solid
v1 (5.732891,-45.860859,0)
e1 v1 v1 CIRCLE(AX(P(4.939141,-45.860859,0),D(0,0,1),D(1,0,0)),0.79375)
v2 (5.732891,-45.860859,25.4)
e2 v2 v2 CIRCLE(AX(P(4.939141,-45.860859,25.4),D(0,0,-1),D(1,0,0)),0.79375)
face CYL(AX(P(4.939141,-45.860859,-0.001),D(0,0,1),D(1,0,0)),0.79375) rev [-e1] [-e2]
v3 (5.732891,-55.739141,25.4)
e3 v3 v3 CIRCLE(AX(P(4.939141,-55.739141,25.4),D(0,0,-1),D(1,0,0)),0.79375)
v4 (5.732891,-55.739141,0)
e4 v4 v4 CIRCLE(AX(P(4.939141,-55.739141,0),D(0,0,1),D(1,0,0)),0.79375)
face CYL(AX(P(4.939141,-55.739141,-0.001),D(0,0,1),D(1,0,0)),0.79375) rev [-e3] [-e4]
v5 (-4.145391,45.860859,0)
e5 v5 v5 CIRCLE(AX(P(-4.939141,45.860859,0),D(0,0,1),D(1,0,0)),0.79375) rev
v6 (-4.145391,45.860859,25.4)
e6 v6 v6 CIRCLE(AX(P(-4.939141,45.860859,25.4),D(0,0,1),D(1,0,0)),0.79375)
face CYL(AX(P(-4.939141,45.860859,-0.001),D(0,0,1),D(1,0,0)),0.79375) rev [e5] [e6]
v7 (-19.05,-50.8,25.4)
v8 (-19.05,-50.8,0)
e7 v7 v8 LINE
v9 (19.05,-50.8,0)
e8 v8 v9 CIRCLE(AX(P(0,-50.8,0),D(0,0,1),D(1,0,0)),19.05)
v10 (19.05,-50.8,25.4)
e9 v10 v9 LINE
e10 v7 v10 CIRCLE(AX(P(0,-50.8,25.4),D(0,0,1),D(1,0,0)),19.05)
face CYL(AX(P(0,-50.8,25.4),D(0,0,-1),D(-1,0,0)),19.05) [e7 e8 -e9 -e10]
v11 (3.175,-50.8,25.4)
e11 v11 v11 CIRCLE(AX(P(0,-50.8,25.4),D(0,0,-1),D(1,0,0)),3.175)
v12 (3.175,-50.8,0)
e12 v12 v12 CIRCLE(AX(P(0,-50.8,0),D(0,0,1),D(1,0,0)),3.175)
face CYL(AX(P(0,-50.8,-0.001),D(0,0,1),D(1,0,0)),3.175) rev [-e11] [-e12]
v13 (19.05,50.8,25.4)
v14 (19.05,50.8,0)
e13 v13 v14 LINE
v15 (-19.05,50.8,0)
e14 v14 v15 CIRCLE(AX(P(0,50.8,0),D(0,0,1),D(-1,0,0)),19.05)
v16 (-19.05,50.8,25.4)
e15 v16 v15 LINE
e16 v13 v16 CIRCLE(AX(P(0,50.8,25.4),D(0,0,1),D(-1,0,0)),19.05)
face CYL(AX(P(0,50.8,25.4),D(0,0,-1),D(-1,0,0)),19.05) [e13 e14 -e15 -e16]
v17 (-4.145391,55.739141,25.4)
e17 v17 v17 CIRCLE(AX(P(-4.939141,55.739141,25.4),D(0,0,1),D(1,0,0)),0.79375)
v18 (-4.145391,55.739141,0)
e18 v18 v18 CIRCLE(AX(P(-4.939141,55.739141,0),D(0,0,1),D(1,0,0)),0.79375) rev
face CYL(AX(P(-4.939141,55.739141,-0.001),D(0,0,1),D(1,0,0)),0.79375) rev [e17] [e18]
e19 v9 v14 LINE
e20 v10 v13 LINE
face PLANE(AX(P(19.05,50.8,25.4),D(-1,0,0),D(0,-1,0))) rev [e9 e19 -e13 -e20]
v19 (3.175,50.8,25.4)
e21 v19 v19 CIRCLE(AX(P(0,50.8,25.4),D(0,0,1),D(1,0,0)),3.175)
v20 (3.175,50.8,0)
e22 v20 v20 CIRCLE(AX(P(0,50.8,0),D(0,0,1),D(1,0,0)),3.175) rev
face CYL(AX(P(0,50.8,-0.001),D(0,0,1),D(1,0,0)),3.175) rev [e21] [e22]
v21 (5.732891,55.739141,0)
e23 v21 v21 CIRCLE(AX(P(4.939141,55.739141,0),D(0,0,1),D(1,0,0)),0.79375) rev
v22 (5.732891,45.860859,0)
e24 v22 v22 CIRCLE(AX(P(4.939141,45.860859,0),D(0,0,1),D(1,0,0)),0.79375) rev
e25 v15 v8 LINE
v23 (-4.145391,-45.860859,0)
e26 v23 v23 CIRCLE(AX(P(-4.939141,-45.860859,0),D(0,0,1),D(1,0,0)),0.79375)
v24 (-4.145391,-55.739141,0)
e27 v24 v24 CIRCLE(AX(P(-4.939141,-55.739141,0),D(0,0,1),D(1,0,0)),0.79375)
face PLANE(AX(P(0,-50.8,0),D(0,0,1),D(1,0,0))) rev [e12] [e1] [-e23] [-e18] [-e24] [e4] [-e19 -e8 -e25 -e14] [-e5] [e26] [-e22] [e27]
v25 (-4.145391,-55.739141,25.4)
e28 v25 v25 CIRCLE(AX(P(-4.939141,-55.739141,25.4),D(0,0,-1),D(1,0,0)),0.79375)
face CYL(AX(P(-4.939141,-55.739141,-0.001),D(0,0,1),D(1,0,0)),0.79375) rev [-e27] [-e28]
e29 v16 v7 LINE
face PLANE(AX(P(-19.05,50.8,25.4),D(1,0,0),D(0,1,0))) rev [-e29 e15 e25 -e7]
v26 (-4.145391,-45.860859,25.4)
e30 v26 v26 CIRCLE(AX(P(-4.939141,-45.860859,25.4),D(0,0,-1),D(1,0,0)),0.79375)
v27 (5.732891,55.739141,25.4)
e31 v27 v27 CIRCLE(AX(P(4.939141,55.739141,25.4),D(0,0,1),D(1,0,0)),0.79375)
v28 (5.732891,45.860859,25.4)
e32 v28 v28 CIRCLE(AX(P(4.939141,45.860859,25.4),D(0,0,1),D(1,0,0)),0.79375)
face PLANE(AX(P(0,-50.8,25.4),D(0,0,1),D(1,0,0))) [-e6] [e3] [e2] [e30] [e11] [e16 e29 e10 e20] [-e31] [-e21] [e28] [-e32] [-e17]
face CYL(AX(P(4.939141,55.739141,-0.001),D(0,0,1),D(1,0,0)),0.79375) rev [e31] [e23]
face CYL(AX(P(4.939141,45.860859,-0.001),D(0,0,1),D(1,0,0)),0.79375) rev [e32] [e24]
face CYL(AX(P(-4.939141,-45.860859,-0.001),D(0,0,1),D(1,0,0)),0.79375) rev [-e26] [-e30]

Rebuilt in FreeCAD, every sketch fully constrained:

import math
import FreeCAD as App
import Part
import Sketcher
from FreeCAD import Vector
Q = App.Units.Quantity

doc = App.newDocument("Part")
body = doc.addObject("PartDesign::Body", "Body")

sketch1 = body.newObject("Sketcher::SketchObject", "Sketch")
sketch1.AttachmentSupport = (doc.getObject("XY_Plane"), [""])
sketch1.MapMode = "FlatFace"
sketch1.addGeometry([
    Part.LineSegment(Vector(19, -51, 0), Vector(19, 51, 0)),
    Part.ArcOfCircle(Part.Circle(Vector(0, 51, 0), Vector(0, 0, 1), 19), math.radians(0), math.radians(180)),
    Part.LineSegment(Vector(-19, 51, 0), Vector(-19, -51, 0)),
    Part.ArcOfCircle(Part.Circle(Vector(0, -51, 0), Vector(0, 0, 1), 19), math.radians(180), math.radians(360)),
], False)
sketch1.addConstraint([
    Sketcher.Constraint("Tangent", 0, 2, 1, 1),
    Sketcher.Constraint("Tangent", 1, 2, 2, 1),
    Sketcher.Constraint("Tangent", 2, 2, 3, 1),
    Sketcher.Constraint("Tangent", 3, 2, 0, 1),
    Sketcher.Constraint("Vertical", 0),
    Sketcher.Constraint("Vertical", 2),
    Sketcher.Constraint("Symmetric", 1, 3, 3, 3, -1, 1),
    Sketcher.Constraint("DistanceY", 0, 1, 0, 2, Q("4 in")),
    Sketcher.Constraint("Radius", 1, Q("0.75 in")),
])
pad1 = body.newObject("PartDesign::Pad", "Pad")
pad1.Profile = sketch1
pad1.Length = Q("1 in")

sketch2 = body.newObject("Sketcher::SketchObject", "Sketch001")
sketch2.AttachmentSupport = (doc.getObject("XY_Plane"), [""])
sketch2.MapMode = "FlatFace"
sketch2.AttachmentOffset = App.Placement(Vector(0, 0, 1 * 25.4), App.Rotation())
sketch2.addGeometry([
    Part.Circle(Vector(0, 50.8, 0), Vector(0, 0, 1), 3.2),
    Part.Circle(Vector(-4.9, 55.7, 0), Vector(0, 0, 1), 0.8),
    Part.Circle(Vector(-4.9, 45.9, 0), Vector(0, 0, 1), 0.8),
    Part.Circle(Vector(4.9, 55.7, 0), Vector(0, 0, 1), 0.8),
    Part.Circle(Vector(4.9, 45.9, 0), Vector(0, 0, 1), 0.8),
], False)
sketch2.addConstraint([
    Sketcher.Constraint("Equal", 1, 2),
    Sketcher.Constraint("Equal", 2, 3),
    Sketcher.Constraint("Equal", 3, 4),
    Sketcher.Constraint("Symmetric", 1, 3, 3, 3, -2),
    Sketcher.Constraint("Symmetric", 2, 3, 4, 3, -2),
    Sketcher.Constraint("PointOnObject", 0, 3, -2),
    Sketcher.Constraint("Vertical", 1, 3, 2, 3),
    Sketcher.Constraint("Diameter", 0, Q("0.25 in")),
    Sketcher.Constraint("Diameter", 1, Q("0.0625 in")),
    Sketcher.Constraint("DistanceY", -1, 1, 0, 3, Q("2 in")),
    Sketcher.Constraint("DistanceX", 1, 3, -1, 1, Q("4.939141 mm")),
    Sketcher.Constraint("DistanceY", -1, 1, 1, 3, Q("55.739141 mm")),
    Sketcher.Constraint("DistanceY", -1, 1, 2, 3, Q("45.860859 mm")),
])
pocket1 = body.newObject("PartDesign::Pocket", "Pocket")
pocket1.Profile = sketch2
pocket1.Length = Q("1 in")
doc.recompute()

mirrored = body.newObject("PartDesign::Mirrored", "Mirrored")
mirrored.Originals = [pocket1]
mirrored.MirrorPlane = (doc.getObject("XZ_Plane"), [""])
body.Tip = mirrored

doc.recompute()
